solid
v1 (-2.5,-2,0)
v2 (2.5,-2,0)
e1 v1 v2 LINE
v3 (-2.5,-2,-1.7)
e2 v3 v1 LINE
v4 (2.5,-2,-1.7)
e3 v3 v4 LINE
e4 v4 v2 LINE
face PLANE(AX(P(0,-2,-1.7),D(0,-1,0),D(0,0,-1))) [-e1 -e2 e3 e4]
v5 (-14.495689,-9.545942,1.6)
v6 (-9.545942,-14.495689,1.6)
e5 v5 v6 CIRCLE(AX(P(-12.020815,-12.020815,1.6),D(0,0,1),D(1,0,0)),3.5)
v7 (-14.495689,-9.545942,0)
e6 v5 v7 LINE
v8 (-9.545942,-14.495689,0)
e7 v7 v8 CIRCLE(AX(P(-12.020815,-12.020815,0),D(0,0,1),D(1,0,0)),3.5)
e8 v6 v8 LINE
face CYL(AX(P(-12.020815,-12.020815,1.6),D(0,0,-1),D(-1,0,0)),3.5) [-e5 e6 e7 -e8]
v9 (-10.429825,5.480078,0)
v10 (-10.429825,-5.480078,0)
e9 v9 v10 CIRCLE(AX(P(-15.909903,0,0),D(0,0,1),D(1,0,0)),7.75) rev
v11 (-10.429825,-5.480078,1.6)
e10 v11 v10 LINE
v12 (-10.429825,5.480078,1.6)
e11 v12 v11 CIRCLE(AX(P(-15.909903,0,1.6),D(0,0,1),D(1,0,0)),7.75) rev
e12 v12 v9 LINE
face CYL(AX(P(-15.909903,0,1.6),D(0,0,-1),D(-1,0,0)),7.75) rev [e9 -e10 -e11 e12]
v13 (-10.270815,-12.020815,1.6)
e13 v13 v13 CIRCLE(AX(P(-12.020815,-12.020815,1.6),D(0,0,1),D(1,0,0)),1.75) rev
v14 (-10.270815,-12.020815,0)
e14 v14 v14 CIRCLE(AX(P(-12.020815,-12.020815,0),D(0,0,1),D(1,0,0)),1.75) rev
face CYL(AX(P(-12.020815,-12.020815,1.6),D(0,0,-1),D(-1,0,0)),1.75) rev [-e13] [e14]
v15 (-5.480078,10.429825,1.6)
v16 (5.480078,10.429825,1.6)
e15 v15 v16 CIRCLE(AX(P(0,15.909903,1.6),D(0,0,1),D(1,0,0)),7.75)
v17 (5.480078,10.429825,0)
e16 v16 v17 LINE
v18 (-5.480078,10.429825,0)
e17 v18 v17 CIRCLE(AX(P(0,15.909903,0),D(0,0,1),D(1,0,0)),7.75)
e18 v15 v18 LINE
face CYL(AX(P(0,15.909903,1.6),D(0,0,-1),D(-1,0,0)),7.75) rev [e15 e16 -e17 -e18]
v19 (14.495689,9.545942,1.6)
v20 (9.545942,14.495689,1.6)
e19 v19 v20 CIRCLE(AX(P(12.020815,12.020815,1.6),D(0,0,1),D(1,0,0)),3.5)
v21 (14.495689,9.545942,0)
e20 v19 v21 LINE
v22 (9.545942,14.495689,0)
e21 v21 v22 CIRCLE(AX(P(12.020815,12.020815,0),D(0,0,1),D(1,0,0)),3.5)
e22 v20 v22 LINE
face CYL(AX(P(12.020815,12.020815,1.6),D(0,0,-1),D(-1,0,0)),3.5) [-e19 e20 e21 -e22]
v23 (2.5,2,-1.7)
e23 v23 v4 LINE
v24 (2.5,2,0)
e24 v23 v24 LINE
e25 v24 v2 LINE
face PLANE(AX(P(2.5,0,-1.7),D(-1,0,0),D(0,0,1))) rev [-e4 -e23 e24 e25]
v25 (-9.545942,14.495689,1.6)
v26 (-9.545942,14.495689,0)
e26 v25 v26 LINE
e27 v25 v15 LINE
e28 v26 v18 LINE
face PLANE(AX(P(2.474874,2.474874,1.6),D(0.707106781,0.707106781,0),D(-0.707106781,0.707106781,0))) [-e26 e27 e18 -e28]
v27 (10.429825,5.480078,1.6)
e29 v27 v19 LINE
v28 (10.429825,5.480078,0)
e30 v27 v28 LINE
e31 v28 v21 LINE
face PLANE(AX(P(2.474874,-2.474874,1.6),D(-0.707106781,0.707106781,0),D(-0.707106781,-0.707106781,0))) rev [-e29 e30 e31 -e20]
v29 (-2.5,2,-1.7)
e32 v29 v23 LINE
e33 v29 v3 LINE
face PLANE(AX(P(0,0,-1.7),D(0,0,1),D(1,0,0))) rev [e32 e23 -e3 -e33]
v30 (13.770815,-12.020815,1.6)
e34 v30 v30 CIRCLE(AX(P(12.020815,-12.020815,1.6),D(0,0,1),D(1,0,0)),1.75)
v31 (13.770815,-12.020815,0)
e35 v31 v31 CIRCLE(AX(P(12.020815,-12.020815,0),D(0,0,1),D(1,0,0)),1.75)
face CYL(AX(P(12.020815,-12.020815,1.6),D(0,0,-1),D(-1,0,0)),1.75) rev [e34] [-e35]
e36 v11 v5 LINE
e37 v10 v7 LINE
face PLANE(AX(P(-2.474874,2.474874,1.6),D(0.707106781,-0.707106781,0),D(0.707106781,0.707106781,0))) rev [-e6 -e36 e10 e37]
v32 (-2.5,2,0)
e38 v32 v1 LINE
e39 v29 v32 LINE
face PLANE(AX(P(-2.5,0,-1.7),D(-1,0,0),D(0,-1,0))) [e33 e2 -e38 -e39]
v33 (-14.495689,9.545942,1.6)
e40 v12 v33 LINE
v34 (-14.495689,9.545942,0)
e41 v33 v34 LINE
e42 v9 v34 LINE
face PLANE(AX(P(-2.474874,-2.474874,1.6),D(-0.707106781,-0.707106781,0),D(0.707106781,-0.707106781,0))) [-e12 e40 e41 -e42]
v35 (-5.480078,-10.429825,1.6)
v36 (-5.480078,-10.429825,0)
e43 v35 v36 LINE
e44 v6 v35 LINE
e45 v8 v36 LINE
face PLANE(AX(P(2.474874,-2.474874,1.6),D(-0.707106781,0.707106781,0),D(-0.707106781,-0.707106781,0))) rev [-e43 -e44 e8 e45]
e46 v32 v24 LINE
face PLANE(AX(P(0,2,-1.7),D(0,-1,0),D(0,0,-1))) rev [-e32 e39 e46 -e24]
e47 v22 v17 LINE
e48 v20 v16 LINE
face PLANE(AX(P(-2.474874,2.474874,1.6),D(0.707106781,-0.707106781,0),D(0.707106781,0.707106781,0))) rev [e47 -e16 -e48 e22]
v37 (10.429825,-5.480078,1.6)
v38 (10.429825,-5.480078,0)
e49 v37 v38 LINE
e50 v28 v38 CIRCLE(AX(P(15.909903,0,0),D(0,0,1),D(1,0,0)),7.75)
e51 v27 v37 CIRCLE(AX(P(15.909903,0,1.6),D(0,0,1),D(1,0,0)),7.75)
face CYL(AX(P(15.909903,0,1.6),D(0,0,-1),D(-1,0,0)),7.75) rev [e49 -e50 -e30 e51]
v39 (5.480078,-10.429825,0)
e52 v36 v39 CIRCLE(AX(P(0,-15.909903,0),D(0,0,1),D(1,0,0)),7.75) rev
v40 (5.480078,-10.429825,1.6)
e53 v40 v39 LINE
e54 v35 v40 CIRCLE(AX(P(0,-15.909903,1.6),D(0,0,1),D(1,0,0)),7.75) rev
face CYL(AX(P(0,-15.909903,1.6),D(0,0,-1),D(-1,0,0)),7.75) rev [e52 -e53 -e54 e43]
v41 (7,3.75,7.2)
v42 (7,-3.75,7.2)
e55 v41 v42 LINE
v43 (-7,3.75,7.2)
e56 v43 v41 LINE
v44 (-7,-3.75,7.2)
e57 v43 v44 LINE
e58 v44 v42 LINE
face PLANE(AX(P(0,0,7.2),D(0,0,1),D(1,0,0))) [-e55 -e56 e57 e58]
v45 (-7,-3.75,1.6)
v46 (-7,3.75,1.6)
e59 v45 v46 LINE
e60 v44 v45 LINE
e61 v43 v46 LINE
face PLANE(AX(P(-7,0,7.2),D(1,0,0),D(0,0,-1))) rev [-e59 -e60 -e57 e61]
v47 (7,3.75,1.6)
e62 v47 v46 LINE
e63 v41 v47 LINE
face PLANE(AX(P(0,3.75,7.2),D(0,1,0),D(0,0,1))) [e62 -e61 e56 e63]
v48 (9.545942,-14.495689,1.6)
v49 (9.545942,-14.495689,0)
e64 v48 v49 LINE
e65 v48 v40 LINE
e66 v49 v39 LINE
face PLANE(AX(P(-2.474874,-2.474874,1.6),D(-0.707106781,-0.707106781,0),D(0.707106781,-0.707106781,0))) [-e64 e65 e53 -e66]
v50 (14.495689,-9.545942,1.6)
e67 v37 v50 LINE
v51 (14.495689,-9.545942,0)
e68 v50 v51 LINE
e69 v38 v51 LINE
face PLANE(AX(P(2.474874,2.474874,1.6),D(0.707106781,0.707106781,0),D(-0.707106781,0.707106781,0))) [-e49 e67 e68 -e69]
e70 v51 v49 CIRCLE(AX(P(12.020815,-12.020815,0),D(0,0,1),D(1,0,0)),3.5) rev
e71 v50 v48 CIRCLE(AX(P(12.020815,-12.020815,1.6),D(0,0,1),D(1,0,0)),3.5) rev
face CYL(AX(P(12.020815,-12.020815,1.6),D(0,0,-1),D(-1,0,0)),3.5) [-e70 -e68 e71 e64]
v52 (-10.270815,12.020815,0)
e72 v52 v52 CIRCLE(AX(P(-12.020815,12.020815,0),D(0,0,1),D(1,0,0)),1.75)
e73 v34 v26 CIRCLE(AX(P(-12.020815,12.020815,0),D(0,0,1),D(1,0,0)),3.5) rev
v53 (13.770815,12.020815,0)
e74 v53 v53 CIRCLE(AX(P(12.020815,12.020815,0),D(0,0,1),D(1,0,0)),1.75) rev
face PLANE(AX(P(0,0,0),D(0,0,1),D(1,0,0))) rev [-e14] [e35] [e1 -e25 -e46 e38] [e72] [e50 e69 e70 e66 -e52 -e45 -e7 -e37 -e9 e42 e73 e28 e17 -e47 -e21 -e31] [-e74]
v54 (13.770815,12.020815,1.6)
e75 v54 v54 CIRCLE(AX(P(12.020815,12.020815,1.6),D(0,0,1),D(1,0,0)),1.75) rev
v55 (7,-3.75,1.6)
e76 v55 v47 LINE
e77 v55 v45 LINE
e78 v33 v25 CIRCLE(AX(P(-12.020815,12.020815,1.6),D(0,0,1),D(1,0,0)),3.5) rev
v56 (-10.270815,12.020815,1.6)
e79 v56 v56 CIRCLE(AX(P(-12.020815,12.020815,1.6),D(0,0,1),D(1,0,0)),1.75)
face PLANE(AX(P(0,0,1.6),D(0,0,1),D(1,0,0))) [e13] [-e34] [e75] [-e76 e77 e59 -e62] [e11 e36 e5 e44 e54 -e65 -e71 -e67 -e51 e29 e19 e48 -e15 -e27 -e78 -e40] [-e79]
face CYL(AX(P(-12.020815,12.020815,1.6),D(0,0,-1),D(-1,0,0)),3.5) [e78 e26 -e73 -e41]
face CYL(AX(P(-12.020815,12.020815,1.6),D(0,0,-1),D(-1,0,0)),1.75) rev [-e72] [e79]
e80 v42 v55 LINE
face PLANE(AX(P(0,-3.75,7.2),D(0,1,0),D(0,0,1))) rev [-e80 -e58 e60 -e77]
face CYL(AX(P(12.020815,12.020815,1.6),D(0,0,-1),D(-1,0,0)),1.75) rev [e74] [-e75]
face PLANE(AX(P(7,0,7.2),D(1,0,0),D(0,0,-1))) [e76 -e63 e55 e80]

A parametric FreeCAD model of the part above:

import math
import FreeCAD as App
import Part
import Sketcher

V = App.Vector
Q = App.Units.Quantity

doc = App.newDocument("Part")
body = doc.addObject("PartDesign::Body", "Body")

# Sketch on XY plane
sketch1 = body.newObject("Sketcher::SketchObject", "Sketch")
sketch1.AttachmentSupport = (doc.getObject("XY_Plane"), [""])
sketch1.MapMode = "FlatFace"
sketch1.addGeometry([
    Part.LineSegment(V(-14.5, 9.5, 0), V(-10.4, 5.5, 0)),  # 0
    Part.ArcOfCircle(Part.Circle(V(-15.9, 0, 0), V(0, 0, 1), 7.7), math.radians(-45), math.radians(45)),  # 1
    Part.LineSegment(V(-10.4, -5.5, 0), V(-14.5, -9.5, 0)),  # 2
    Part.ArcOfCircle(Part.Circle(V(-12, -12, 0), V(0, 0, 1), 3.5), math.radians(135), math.radians(315)),  # 3
    Part.LineSegment(V(-9.5, -14.5, 0), V(-5.5, -10.4, 0)),  # 4
    Part.ArcOfCircle(Part.Circle(V(0, -15.9, 0), V(0, 0, 1), 7.7), math.radians(45), math.radians(135)),  # 5
    Part.LineSegment(V(5.5, -10.4, 0), V(9.5, -14.5, 0)),  # 6
    Part.ArcOfCircle(Part.Circle(V(12, -12, 0), V(0, 0, 1), 3.5), math.radians(-135), math.radians(45)),  # 7
    Part.LineSegment(V(14.5, -9.5, 0), V(10.4, -5.5, 0)),  # 8
    Part.ArcOfCircle(Part.Circle(V(15.9, 0, 0), V(0, 0, 1), 7.7), math.radians(135), math.radians(225)),  # 9
    Part.LineSegment(V(10.4, 5.5, 0), V(14.5, 9.5, 0)),  # 10
    Part.ArcOfCircle(Part.Circle(V(12, 12, 0), V(0, 0, 1), 3.5), math.radians(-45), math.radians(135)),  # 11
    Part.LineSegment(V(9.5, 14.5, 0), V(5.5, 10.4, 0)),  # 12
    Part.ArcOfCircle(Part.Circle(V(0, 15.9, 0), V(0, 0, 1), 7.7), math.radians(-135), math.radians(-45)),  # 13
    Part.LineSegment(V(-5.5, 10.4, 0), V(-9.5, 14.5, 0)),  # 14
    Part.ArcOfCircle(Part.Circle(V(-12, 12, 0), V(0, 0, 1), 3.5), math.radians(45), math.radians(225)),  # 15
    Part.Circle(V(12, -12, 0), V(0, 0, 1), 1.8),  # 16
    Part.Circle(V(-12, -12, 0), V(0, 0, 1), 1.8),  # 17
    Part.Circle(V(12, 12, 0), V(0, 0, 1), 1.8),  # 18
    Part.LineSegment(V(-2.5, -2, 0), V(-2.5, 2, 0)),  # 19
    Part.LineSegment(V(-2.5, 2, 0), V(2.5, 2, 0)),  # 20
    Part.LineSegment(V(2.5, 2, 0), V(2.5, -2, 0)),  # 21
    Part.LineSegment(V(2.5, -2, 0), V(-2.5, -2, 0)),  # 22
    Part.Circle(V(-12, 12, 0), V(0, 0, 1), 1.8),  # 23
], False)
sketch1.addConstraint([
    Sketcher.Constraint("Tangent", 0, 2, 1, 2),
    Sketcher.Constraint("Tangent", 1, 1, 2, 1),
    Sketcher.Constraint("Tangent", 2, 2, 3, 1),
    Sketcher.Constraint("Tangent", 3, 2, 4, 1),
    Sketcher.Constraint("Tangent", 4, 2, 5, 2),
    Sketcher.Constraint("Tangent", 5, 1, 6, 1),
    Sketcher.Constraint("Tangent", 6, 2, 7, 1),
    Sketcher.Constraint("Tangent", 7, 2, 8, 1),
    Sketcher.Constraint("Tangent", 8, 2, 9, 2),
    Sketcher.Constraint("Tangent", 9, 1, 10, 1),
    Sketcher.Constraint("Tangent", 10, 2, 11, 1),
    Sketcher.Constraint("Tangent", 11, 2, 12, 1),
    Sketcher.Constraint("Tangent", 12, 2, 13, 2),
    Sketcher.Constraint("Tangent", 13, 1, 14, 1),
    Sketcher.Constraint("Tangent", 14, 2, 15, 1),
    Sketcher.Constraint("Tangent", 15, 2, 0, 1),
    Sketcher.Constraint("Coincident", 19, 2, 20, 1),
    Sketcher.Constraint("Coincident", 20, 2, 21, 1),
    Sketcher.Constraint("Coincident", 21, 2, 22, 1),
    Sketcher.Constraint("Coincident", 22, 2, 19, 1),
    Sketcher.Constraint("Vertical", 19),
    Sketcher.Constraint("Horizontal", 20),
    Sketcher.Constraint("Vertical", 21),
    Sketcher.Constraint("Horizontal", 22),
    Sketcher.Constraint("Coincident", 16, 3, 7, 3),
    Sketcher.Constraint("Coincident", 17, 3, 3, 3),
    Sketcher.Constraint("Coincident", 18, 3, 11, 3),
    Sketcher.Constraint("Coincident", 23, 3, 15, 3),
    Sketcher.Constraint("Equal", 1, 5),
    Sketcher.Constraint("Equal", 3, 7),
    Sketcher.Constraint("Equal", 5, 9),
    Sketcher.Constraint("Equal", 7, 11),
    Sketcher.Constraint("Equal", 9, 13),
    Sketcher.Constraint("Equal", 11, 15),
    Sketcher.Constraint("Equal", 16, 17),
    Sketcher.Constraint("Equal", 17, 18),
    Sketcher.Constraint("Equal", 18, 23),
    Sketcher.Constraint("Symmetric", 1, 3, 9, 3, -1, 1),
    Sketcher.Constraint("Symmetric", 3, 3, 11, 3, -1, 1),
    Sketcher.Constraint("Symmetric", 5, 3, 13, 3, -1, 1),
    Sketcher.Constraint("Symmetric", 7, 3, 15, 3, -1, 1),
    Sketcher.Constraint("Symmetric", 19, 2, 21, 2, -1, 1),
    Sketcher.Constraint("Symmetric", 3, 3, 7, 3, -2),
    Sketcher.Constraint("PointOnObject", 1, 3, -1),
    Sketcher.Constraint("PointOnObject", 5, 3, -2),
    Sketcher.Constraint("Perpendicular", 0, 2),
    Sketcher.Constraint("Parallel", 2, 4),
    Sketcher.Constraint("Equal", 2, 4),
    Sketcher.Constraint("Diameter", 16, Q("3.5 mm")),
    Sketcher.Constraint("Radius", 3, Q("3.5 mm")),
    Sketcher.Constraint("DistanceX", 20, 1, 20, 2, Q("5 mm")),
    Sketcher.Constraint("DistanceY", 19, 1, 19, 2, Q("4 mm")),
    Sketcher.Constraint("Radius", 1, Q("7.75 mm")),
    Sketcher.Constraint("Distance", 0, Q("5.75 mm")),
])
pad1 = body.newObject("PartDesign::Pad", "Pad")
pad1.Profile = sketch1
pad1.Length = 1.6

# Sketch on XY plane
sketch2 = body.newObject("Sketcher::SketchObject", "Sketch001")
sketch2.AttachmentSupport = (doc.getObject("XY_Plane"), [""])
sketch2.MapMode = "FlatFace"
sketch2.addGeometry([
    Part.LineSegment(V(-7, 4, 0), V(-7, -4, 0)),
    Part.LineSegment(V(-7, -4, 0), V(7, -4, 0)),
    Part.LineSegment(V(7, -4, 0), V(7, 4, 0)),
    Part.LineSegment(V(7, 4, 0), V(-7, 4, 0)),
], False)
sketch2.addConstraint([
    Sketcher.Constraint("Coincident", 0, 2, 1, 1),
    Sketcher.Constraint("Coincident", 1, 2, 2, 1),
    Sketcher.Constraint("Coincident", 2, 2, 3, 1),
    Sketcher.Constraint("Coincident", 3, 2, 0, 1),
    Sketcher.Constraint("Vertical", 0),
    Sketcher.Constraint("Horizontal", 1),
    Sketcher.Constraint("Vertical", 2),
    Sketcher.Constraint("Horizontal", 3),
    Sketcher.Constraint("Symmetric", 0, 2, 2, 2, -1, 1),
    Sketcher.Constraint("DistanceX", 1, 1, 1, 2, Q("14 mm")),
    Sketcher.Constraint("DistanceY", 0, 2, 0, 1, Q("7.5 mm")),
])
pad2 = body.newObject("PartDesign::Pad", "Pad001")
pad2.Profile = sketch2
pad2.Length = 7.2

# Sketch on XY plane
sketch3 = body.newObject("Sketcher::SketchObject", "Sketch002")
sketch3.AttachmentSupport = (doc.getObject("XY_Plane"), [""])
sketch3.MapMode = "FlatFace"
sketch3.addGeometry([
    Part.LineSegment(V(-2.5, 2, 0), V(-2.5, -2, 0)),
    Part.LineSegment(V(-2.5, -2, 0), V(2.5, -2, 0)),
    Part.LineSegment(V(2.5, -2, 0), V(2.5, 2, 0)),
    Part.LineSegment(V(2.5, 2, 0), V(-2.5, 2, 0)),
], False)
sketch3.addConstraint([
    Sketcher.Constraint("Coincident", 0, 2, 1, 1),
    Sketcher.Constraint("Coincident", 1, 2, 2, 1),
    Sketcher.Constraint("Coincident", 2, 2, 3, 1),
    Sketcher.Constraint("Coincident", 3, 2, 0, 1),
    Sketcher.Constraint("Vertical", 0),
    Sketcher.Constraint("Horizontal", 1),
    Sketcher.Constraint("Vertical", 2),
    Sketcher.Constraint("Horizontal", 3),
    Sketcher.Constraint("Symmetric", 0, 2, 2, 2, -1, 1),
    Sketcher.Constraint("DistanceX", 1, 1, 1, 2, Q("5 mm")),
    Sketcher.Constraint("DistanceY", 0, 2, 0, 1, Q("4 mm")),
])
pad3 = body.newObject("PartDesign::Pad", "Pad002")
pad3.Profile = sketch3
pad3.Length = 1.7
pad3.Reversed = True

doc.recompute()
